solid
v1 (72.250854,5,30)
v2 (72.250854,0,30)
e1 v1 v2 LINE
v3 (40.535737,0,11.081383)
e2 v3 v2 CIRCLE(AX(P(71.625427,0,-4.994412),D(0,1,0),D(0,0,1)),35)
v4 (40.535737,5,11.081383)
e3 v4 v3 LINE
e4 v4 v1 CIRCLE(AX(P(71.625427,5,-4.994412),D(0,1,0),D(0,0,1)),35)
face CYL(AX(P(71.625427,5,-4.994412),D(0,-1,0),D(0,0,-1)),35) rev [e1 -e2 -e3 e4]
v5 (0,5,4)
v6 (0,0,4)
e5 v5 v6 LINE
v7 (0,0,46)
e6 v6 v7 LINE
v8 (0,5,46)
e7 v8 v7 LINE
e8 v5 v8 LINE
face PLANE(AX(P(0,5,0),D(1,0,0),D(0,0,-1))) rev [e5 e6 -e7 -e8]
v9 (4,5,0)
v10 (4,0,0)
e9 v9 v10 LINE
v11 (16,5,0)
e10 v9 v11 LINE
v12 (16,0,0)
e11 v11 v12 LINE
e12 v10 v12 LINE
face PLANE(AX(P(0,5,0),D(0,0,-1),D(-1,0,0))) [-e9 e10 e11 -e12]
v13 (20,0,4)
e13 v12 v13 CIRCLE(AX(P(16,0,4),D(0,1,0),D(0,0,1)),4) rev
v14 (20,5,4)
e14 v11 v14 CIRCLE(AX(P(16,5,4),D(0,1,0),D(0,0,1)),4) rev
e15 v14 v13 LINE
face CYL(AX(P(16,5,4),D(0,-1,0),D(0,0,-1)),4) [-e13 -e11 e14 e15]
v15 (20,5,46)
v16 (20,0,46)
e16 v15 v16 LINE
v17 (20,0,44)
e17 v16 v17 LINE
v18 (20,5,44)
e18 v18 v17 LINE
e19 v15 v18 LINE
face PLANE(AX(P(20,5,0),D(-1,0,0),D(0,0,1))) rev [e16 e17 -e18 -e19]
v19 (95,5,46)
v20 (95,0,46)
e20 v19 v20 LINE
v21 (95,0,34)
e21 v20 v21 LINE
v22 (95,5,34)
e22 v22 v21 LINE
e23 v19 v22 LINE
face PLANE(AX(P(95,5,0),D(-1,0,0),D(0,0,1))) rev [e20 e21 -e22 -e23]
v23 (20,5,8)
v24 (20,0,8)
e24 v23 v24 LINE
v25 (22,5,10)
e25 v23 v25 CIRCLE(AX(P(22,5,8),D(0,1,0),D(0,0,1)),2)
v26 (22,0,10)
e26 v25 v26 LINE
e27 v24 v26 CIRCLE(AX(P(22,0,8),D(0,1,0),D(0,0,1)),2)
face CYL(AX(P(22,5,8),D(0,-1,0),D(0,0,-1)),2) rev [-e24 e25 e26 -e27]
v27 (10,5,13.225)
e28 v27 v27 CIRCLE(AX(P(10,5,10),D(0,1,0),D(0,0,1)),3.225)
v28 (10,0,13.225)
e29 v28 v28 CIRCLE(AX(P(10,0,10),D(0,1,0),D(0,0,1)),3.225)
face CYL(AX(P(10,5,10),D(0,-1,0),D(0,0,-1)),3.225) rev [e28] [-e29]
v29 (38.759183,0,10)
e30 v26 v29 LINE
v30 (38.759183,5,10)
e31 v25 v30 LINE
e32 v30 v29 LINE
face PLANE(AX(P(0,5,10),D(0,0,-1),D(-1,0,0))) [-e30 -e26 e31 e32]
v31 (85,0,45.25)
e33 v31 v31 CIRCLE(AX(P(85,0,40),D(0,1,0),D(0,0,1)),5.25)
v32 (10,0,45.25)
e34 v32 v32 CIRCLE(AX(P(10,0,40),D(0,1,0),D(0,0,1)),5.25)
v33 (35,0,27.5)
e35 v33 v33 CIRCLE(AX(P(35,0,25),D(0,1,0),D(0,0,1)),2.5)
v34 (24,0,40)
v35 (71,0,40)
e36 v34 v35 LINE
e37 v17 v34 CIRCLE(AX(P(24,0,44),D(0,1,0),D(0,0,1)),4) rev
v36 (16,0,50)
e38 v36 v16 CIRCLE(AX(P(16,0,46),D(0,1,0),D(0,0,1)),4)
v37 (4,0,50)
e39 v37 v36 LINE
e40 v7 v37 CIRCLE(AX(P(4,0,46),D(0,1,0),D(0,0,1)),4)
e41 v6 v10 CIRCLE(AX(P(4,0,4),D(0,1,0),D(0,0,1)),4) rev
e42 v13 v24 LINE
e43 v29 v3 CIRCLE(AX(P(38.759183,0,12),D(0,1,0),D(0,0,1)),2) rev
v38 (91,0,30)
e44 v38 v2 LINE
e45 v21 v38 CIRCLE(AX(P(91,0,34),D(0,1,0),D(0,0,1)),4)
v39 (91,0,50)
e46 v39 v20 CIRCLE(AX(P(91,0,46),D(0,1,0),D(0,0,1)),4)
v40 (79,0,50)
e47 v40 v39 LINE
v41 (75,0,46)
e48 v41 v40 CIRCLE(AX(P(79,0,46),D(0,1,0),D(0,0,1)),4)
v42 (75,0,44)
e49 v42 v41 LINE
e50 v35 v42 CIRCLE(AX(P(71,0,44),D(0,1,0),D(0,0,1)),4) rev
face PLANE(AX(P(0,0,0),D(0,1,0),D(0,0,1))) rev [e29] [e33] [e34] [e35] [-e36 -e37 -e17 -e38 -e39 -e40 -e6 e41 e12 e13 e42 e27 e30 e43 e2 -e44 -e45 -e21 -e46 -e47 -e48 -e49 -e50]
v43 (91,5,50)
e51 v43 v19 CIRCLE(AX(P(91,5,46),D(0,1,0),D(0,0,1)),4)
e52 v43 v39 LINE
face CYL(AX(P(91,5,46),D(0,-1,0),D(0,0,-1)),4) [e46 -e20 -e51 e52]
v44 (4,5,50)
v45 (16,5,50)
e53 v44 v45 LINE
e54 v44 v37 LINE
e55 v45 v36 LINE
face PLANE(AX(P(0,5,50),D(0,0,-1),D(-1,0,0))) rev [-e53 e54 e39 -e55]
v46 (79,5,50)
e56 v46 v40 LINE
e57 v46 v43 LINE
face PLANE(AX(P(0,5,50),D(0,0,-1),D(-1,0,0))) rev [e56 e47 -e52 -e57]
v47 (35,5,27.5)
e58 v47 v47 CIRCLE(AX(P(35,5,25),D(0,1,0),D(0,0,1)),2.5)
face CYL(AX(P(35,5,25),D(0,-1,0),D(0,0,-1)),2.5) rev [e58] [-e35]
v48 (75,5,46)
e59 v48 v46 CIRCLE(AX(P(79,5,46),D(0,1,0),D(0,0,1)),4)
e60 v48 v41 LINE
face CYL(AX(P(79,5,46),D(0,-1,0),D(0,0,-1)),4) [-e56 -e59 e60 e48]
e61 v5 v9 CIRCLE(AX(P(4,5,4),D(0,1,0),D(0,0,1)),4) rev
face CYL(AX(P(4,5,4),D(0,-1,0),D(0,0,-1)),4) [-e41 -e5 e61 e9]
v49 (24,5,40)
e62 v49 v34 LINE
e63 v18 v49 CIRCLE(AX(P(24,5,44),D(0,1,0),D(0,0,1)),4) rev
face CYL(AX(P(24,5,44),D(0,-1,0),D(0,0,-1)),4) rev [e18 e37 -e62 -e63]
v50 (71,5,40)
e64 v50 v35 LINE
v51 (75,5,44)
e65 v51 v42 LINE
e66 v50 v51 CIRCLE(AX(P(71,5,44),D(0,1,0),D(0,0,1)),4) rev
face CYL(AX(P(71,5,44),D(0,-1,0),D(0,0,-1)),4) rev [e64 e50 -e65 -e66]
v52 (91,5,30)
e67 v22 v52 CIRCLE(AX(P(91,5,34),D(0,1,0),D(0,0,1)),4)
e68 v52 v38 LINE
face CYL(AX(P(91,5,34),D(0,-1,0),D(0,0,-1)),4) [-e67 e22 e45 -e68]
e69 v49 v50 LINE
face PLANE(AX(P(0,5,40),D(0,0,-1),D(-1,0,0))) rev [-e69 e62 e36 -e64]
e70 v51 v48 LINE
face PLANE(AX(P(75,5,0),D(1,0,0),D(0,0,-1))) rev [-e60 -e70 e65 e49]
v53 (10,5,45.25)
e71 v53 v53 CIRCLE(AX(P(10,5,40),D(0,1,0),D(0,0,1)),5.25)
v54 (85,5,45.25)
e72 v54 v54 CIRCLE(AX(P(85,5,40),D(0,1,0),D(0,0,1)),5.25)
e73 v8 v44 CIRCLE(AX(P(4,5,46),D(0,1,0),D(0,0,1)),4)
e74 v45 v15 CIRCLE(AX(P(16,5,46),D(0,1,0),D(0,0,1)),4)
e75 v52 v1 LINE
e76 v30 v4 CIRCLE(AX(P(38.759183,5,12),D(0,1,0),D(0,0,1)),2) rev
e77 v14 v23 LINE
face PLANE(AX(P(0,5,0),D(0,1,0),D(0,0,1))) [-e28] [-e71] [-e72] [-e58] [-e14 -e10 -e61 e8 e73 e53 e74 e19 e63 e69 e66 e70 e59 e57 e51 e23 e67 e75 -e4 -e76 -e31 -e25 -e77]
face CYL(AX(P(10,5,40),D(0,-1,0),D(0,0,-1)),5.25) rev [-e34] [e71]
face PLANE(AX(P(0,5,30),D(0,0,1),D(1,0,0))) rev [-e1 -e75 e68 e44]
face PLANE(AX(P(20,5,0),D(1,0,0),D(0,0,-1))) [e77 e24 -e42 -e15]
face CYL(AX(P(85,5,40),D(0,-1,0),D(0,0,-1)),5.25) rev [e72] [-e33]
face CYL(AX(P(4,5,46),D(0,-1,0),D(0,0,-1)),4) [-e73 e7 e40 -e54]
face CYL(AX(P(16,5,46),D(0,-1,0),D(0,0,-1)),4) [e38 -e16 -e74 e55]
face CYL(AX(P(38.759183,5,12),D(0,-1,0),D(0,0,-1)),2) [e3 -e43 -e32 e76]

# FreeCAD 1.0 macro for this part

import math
import FreeCAD as App
import Part
import Sketcher
from FreeCAD import Vector
Q = App.Units.Quantity

doc = App.newDocument("Part")
body = doc.addObject("PartDesign::Body", "Body")

sketch1 = doc.addObject("Sketcher::SketchObject", "Sketch")
body.addObject(sketch1)
sketch1.AttachmentSupport = (doc.XZ_Plane, [""])
sketch1.MapMode = "FlatFace"
sketch1.addGeometry(Part.ArcOfCircle(Part.Circle(Vector(4, 4, 0), Vector(0, 0, 1), 4), math.radians(180), math.radians(270)), False)
sketch1.addGeometry(Part.LineSegment(Vector(0, 4, 0), Vector(0, 46, 0)), False)
sketch1.addGeometry(Part.ArcOfCircle(Part.Circle(Vector(4, 46, 0), Vector(0, 0, 1), 4), math.radians(90), math.radians(180)), False)
sketch1.addGeometry(Part.LineSegment(Vector(4, 50, 0), Vector(16, 50, 0)), False)
sketch1.addGeometry(Part.ArcOfCircle(Part.Circle(Vector(16, 46, 0), Vector(0, 0, 1), 4), math.radians(0), math.radians(90)), False)
sketch1.addGeometry(Part.LineSegment(Vector(20, 46, 0), Vector(20, 44, 0)), False)
sketch1.addGeometry(Part.ArcOfCircle(Part.Circle(Vector(24, 44, 0), Vector(0, 0, 1), 4), math.radians(180), math.radians(270)), False)
sketch1.addGeometry(Part.LineSegment(Vector(24, 40, 0), Vector(71, 40, 0)), False)
sketch1.addGeometry(Part.ArcOfCircle(Part.Circle(Vector(71, 44, 0), Vector(0, 0, 1), 4), math.radians(-90), math.radians(0)), False)
sketch1.addGeometry(Part.LineSegment(Vector(75, 44, 0), Vector(75, 46, 0)), False)
sketch1.addGeometry(Part.ArcOfCircle(Part.Circle(Vector(79, 46, 0), Vector(0, 0, 1), 4), math.radians(90), math.radians(180)), False)
sketch1.addGeometry(Part.LineSegment(Vector(79, 50, 0), Vector(91, 50, 0)), False)
sketch1.addGeometry(Part.ArcOfCircle(Part.Circle(Vector(91, 46, 0), Vector(0, 0, 1), 4), math.radians(0), math.radians(90)), False)
sketch1.addGeometry(Part.LineSegment(Vector(95, 46, 0), Vector(95, 34, 0)), False)
sketch1.addGeometry(Part.ArcOfCircle(Part.Circle(Vector(91, 34, 0), Vector(0, 0, 1), 4), math.radians(-90), math.radians(0)), False)
sketch1.addGeometry(Part.LineSegment(Vector(91, 30, 0), Vector(72.250854, 30, 0)), False)
sketch1.addGeometry(Part.ArcOfCircle(Part.Circle(Vector(71.625427, -4.99441, 0), Vector(0, 0, 1), 34.999998), math.radians(88.976108), math.radians(91.023892)), False)
sketch1.addGeometry(Part.ArcOfCircle(Part.Circle(Vector(71.625427, -4.994412, 0), Vector(0, 0, 1), 35), math.radians(91.023892), math.radians(152.65751)), False)
sketch1.addGeometry(Part.ArcOfCircle(Part.Circle(Vector(38.759183, 12, 0), Vector(0, 0, 1), 2), math.radians(-90), math.radians(-27.34249)), False)
sketch1.addGeometry(Part.LineSegment(Vector(38.759183, 10, 0), Vector(22, 10, 0)), False)
sketch1.addGeometry(Part.ArcOfCircle(Part.Circle(Vector(22, 8, 0), Vector(0, 0, 1), 2), math.radians(90), math.radians(180)), False)
sketch1.addGeometry(Part.LineSegment(Vector(20, 8, 0), Vector(20, 4, 0)), False)
sketch1.addGeometry(Part.ArcOfCircle(Part.Circle(Vector(16, 4, 0), Vector(0, 0, 1), 4), math.radians(-90), math.radians(0)), False)
sketch1.addGeometry(Part.LineSegment(Vector(16, 0, 0), Vector(4, 0, 0)), False)
sketch1.addGeometry(Part.Circle(Vector(10, 40, 0), Vector(0, 0, 1), 5.25), False)
sketch1.addGeometry(Part.Circle(Vector(85, 40, 0), Vector(0, 0, 1), 5.25), False)
sketch1.addGeometry(Part.Circle(Vector(35, 25, 0), Vector(0, 0, 1), 2.5), False)
sketch1.addGeometry(Part.Circle(Vector(10, 10, 0), Vector(0, 0, 1), 3.225), False)
sketch1.addConstraint(Sketcher.Constraint("Tangent", 0, 1, 1, 1))
sketch1.addConstraint(Sketcher.Constraint("Tangent", 1, 2, 2, 2))
sketch1.addConstraint(Sketcher.Constraint("Tangent", 2, 1, 3, 1))
sketch1.addConstraint(Sketcher.Constraint("Tangent", 3, 2, 4, 2))
sketch1.addConstraint(Sketcher.Constraint("Tangent", 4, 1, 5, 1))
sketch1.addConstraint(Sketcher.Constraint("Tangent", 5, 2, 6, 1))
sketch1.addConstraint(Sketcher.Constraint("Tangent", 6, 2, 7, 1))
sketch1.addConstraint(Sketcher.Constraint("Tangent", 7, 2, 8, 1))
sketch1.addConstraint(Sketcher.Constraint("Tangent", 8, 2, 9, 1))
sketch1.addConstraint(Sketcher.Constraint("Tangent", 9, 2, 10, 2))
sketch1.addConstraint(Sketcher.Constraint("Tangent", 10, 1, 11, 1))
sketch1.addConstraint(Sketcher.Constraint("Tangent", 11, 2, 12, 2))
sketch1.addConstraint(Sketcher.Constraint("Tangent", 12, 1, 13, 1))
sketch1.addConstraint(Sketcher.Constraint("Tangent", 13, 2, 14, 2))
sketch1.addConstraint(Sketcher.Constraint("Tangent", 14, 1, 15, 1))
sketch1.addConstraint(Sketcher.Constraint("Coincident", 15, 2, 16, 1))
sketch1.addConstraint(Sketcher.Constraint("Tangent", 16, 2, 17, 1))
sketch1.addConstraint(Sketcher.Constraint("Tangent", 17, 2, 18, 2))
sketch1.addConstraint(Sketcher.Constraint("Tangent", 18, 1, 19, 1))
sketch1.addConstraint(Sketcher.Constraint("Tangent", 19, 2, 20, 1))
sketch1.addConstraint(Sketcher.Constraint("Tangent", 20, 2, 21, 1))
sketch1.addConstraint(Sketcher.Constraint("Tangent", 21, 2, 22, 2))
sketch1.addConstraint(Sketcher.Constraint("Tangent", 22, 1, 23, 1))
sketch1.addConstraint(Sketcher.Constraint("Tangent", 23, 2, 0, 2))
sketch1.addConstraint(Sketcher.Constraint("Vertical", 1))
sketch1.addConstraint(Sketcher.Constraint("Horizontal", 3))
sketch1.addConstraint(Sketcher.Constraint("Vertical", 5))
sketch1.addConstraint(Sketcher.Constraint("Horizontal", 7))
sketch1.addConstraint(Sketcher.Constraint("Vertical", 9))
sketch1.addConstraint(Sketcher.Constraint("Horizontal", 11))
sketch1.addConstraint(Sketcher.Constraint("Vertical", 13))
sketch1.addConstraint(Sketcher.Constraint("Horizontal", 15))
sketch1.addConstraint(Sketcher.Constraint("Horizontal", 19))
sketch1.addConstraint(Sketcher.Constraint("Vertical", 21))
sketch1.addConstraint(Sketcher.Constraint("Horizontal", 23))
sketch1.addConstraint(Sketcher.Constraint("Equal", 0, 2))
sketch1.addConstraint(Sketcher.Constraint("Equal", 2, 4))
sketch1.addConstraint(Sketcher.Constraint("Equal", 4, 6))
sketch1.addConstraint(Sketcher.Constraint("Equal", 6, 8))
sketch1.addConstraint(Sketcher.Constraint("Equal", 8, 10))
sketch1.addConstraint(Sketcher.Constraint("Equal", 10, 12))
sketch1.addConstraint(Sketcher.Constraint("Equal", 12, 14))
sketch1.addConstraint(Sketcher.Constraint("Equal", 16, 17))
sketch1.addConstraint(Sketcher.Constraint("Equal", 18, 20))
sketch1.addConstraint(Sketcher.Constraint("Equal", 14, 22))
sketch1.addConstraint(Sketcher.Constraint("Equal", 24, 25))
sketch1.addConstraint(Sketcher.Constraint("PointOnObject", 0, 1, -2))
sketch1.addConstraint(Sketcher.Constraint("PointOnObject", 22, 1, -1))
sketch1.addConstraint(Sketcher.Constraint("Horizontal", 4, 3, 10, 3))
sketch1.addConstraint(Sketcher.Constraint("Horizontal", 24, 3, 25, 3))
sketch1.addConstraint(Sketcher.Constraint("Horizontal", 25, 3, 6, 2))
sketch1.addConstraint(Sketcher.Constraint("Horizontal", 15, 2, 16, 2))
sketch1.addConstraint(Sketcher.Constraint("Horizontal", 27, 3, 18, 1))
sketch1.addConstraint(Sketcher.Constraint("Vertical", 4, 3, 22, 3))
sketch1.addConstraint(Sketcher.Constraint("Vertical", 24, 3, 27, 3))
sketch1.addConstraint(Sketcher.Constraint("Vertical", 7, 2, 16, 2))
sketch1.addConstraint(Sketcher.Constraint("Equal", 3, 11))
sketch1.addConstraint(Sketcher.Constraint("Equal", 23, 13))
sketch1.addConstraint(Sketcher.Constraint("Diameter", 26, Q("5 mm")))
sketch1.addConstraint(Sketcher.Constraint("Radius", 0, Q("4 mm")))
sketch1.addConstraint(Sketcher.Constraint("Radius", 16, Q("34.999998 mm")))
sketch1.addConstraint(Sketcher.Constraint("Radius", 18, Q("2 mm")))
sketch1.addConstraint(Sketcher.Constraint("Diameter", 24, Q("10.5 mm")))
sketch1.addConstraint(Sketcher.Constraint("Diameter", 27, Q("6.45 mm")))
sketch1.addConstraint(Sketcher.Constraint("DistanceX", 3, 1, 3, 2, Q("12 mm")))
sketch1.addConstraint(Sketcher.Constraint("DistanceX", 7, 1, 7, 2, Q("47 mm")))
sketch1.addConstraint(Sketcher.Constraint("DistanceY", 1, 1, 1, 2, Q("42 mm")))
sketch1.addConstraint(Sketcher.Constraint("DistanceY", 5, 2, 5, 1, Q("2 mm")))
sketch1.addConstraint(Sketcher.Constraint("DistanceY", 21, 2, 21, 1, Q("4 mm")))
sketch1.addConstraint(Sketcher.Constraint("DistanceX", -1, 1, 24, 3, Q("10 mm")))
sketch1.addConstraint(Sketcher.Constraint("DistanceX", -1, 1, 25, 3, Q("85 mm")))
sketch1.addConstraint(Sketcher.Constraint("DistanceX", -1, 1, 26, 3, Q("35 mm")))
sketch1.addConstraint(Sketcher.Constraint("DistanceY", -1, 1, 26, 3, Q("25 mm")))
sketch1.addConstraint(Sketcher.Constraint("DistanceX", 15, 2, 15, 1, Q("18.749146 mm")))
pad1 = doc.addObject("PartDesign::Pad", "Pad")
body.addObject(pad1)
pad1.Profile = sketch1
pad1.Length = 5
pad1.Reversed = True

doc.recompute()
